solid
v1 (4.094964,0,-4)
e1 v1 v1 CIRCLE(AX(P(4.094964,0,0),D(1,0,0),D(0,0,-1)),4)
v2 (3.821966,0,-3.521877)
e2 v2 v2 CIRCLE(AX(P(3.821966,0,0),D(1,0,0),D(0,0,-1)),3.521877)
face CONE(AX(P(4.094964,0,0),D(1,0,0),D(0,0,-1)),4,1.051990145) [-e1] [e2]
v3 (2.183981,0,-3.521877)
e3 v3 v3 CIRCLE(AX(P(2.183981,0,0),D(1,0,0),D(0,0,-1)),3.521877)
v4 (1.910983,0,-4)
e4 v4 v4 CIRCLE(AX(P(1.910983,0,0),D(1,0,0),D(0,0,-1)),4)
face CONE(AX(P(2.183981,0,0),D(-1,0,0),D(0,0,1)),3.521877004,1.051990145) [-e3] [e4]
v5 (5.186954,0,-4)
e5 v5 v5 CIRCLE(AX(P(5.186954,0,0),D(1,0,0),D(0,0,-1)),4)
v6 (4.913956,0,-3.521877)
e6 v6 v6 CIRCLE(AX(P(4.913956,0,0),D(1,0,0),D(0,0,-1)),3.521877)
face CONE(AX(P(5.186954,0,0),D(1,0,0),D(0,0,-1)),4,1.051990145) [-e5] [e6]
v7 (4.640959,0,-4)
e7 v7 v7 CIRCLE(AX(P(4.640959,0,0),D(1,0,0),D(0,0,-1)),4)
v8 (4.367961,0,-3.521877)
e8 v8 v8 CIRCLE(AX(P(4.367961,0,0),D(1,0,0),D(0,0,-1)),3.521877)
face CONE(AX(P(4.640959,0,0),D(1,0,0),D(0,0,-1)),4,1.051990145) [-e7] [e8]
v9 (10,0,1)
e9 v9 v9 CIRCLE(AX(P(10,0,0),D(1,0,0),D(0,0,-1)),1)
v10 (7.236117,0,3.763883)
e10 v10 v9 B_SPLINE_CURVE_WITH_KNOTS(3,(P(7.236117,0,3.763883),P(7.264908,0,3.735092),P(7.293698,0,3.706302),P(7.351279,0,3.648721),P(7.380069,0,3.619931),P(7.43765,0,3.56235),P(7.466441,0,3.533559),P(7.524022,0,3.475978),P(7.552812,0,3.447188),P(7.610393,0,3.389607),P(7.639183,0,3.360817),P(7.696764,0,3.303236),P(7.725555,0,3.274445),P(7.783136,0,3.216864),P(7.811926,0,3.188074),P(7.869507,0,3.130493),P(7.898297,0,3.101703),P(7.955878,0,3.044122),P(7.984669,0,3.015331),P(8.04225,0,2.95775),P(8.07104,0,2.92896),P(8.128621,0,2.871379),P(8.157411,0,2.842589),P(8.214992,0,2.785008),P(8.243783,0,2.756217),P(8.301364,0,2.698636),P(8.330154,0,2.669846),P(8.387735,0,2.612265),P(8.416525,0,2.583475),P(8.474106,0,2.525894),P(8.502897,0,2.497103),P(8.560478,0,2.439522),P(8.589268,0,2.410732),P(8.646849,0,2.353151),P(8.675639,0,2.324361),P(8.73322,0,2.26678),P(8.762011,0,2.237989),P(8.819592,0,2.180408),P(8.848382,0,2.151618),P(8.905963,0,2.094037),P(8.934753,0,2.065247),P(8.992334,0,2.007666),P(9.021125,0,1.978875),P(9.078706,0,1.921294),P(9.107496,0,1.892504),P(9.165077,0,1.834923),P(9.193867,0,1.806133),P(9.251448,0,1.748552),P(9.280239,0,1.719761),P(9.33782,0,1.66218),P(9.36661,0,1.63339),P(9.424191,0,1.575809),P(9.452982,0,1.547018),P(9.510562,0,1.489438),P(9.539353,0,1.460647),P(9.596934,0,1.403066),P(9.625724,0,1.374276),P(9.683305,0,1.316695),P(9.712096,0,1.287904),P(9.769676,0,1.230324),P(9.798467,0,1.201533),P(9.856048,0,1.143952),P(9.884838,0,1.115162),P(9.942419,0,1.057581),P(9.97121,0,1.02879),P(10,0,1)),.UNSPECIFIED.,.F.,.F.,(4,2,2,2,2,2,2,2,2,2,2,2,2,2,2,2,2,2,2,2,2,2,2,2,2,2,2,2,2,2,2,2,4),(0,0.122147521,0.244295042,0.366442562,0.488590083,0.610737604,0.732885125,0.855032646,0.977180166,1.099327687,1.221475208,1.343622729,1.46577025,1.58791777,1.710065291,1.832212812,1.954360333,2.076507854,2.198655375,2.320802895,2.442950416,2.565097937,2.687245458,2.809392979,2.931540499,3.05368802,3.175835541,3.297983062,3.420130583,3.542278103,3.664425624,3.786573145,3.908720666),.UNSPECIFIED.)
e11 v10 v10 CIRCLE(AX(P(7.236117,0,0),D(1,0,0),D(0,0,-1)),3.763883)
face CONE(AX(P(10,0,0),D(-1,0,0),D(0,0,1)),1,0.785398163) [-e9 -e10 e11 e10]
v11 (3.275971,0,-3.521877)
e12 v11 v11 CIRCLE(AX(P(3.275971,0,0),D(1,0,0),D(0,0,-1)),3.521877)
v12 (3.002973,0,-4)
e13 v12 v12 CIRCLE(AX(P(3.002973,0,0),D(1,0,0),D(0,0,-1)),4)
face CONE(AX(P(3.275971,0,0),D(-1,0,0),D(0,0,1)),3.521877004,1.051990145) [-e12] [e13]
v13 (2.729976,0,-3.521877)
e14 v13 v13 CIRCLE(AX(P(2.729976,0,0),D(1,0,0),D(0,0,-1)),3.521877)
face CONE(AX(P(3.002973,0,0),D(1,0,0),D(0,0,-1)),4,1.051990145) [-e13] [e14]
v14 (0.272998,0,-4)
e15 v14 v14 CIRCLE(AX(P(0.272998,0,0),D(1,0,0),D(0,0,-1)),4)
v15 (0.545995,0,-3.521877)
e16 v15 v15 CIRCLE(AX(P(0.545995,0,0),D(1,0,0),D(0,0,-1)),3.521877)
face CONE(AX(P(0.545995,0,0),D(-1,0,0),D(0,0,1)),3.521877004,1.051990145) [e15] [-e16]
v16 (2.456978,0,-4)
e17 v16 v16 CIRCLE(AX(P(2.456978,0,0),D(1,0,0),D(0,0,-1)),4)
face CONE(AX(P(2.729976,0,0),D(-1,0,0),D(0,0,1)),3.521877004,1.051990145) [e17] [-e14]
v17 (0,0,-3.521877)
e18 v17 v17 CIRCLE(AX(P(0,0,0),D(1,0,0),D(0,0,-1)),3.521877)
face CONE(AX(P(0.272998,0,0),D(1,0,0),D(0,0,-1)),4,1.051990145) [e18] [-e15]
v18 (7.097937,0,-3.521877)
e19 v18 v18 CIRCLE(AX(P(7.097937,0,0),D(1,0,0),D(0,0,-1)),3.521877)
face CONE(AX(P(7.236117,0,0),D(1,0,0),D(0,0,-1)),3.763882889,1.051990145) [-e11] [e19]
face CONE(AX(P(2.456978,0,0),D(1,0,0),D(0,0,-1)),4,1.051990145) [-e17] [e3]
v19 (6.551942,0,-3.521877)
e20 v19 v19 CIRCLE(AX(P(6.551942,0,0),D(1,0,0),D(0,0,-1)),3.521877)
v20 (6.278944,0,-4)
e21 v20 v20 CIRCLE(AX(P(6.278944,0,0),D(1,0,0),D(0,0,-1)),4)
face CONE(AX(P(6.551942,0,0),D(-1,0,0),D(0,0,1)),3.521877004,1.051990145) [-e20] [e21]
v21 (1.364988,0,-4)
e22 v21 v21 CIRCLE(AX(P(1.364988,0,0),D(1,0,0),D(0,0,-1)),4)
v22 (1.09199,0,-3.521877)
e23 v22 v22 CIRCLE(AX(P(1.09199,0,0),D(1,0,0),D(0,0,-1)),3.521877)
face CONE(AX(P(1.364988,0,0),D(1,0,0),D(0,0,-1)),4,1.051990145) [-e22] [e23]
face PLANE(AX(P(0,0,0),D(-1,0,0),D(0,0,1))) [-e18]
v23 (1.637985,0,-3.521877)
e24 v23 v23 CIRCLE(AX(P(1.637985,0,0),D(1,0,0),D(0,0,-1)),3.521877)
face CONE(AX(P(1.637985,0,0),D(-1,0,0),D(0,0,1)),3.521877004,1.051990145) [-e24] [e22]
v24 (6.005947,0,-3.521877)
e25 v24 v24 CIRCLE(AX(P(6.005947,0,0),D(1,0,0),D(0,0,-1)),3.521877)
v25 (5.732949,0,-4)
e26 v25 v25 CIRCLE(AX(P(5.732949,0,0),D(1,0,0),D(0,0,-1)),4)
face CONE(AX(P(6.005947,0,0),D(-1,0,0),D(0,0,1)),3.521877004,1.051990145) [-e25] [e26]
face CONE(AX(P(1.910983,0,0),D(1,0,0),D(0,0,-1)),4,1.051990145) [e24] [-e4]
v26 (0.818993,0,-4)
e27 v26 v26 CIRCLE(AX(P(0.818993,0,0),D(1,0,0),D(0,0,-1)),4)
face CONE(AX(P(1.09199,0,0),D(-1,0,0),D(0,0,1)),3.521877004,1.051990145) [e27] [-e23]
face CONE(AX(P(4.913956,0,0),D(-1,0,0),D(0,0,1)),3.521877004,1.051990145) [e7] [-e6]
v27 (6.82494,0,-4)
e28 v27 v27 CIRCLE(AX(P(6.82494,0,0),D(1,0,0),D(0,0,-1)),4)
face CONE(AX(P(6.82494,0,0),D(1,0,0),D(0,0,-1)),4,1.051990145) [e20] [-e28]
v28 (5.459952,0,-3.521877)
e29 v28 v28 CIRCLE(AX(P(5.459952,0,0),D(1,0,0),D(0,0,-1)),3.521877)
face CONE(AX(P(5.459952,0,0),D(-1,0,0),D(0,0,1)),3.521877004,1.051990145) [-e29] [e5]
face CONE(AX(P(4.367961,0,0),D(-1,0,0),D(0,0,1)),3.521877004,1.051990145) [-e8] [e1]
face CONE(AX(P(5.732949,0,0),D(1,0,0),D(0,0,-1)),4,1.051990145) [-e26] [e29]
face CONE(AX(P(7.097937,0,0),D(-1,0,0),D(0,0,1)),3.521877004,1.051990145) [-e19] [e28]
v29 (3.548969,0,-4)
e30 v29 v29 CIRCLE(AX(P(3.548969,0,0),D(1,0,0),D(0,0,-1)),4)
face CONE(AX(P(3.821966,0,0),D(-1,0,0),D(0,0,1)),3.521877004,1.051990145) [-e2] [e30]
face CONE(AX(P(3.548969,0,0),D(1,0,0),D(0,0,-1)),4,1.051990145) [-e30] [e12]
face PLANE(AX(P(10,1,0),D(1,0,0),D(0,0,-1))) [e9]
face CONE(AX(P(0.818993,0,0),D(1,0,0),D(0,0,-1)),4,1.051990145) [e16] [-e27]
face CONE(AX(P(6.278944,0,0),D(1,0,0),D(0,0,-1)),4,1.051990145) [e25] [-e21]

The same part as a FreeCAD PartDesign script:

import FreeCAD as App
import Part
import Sketcher
from FreeCAD import Vector
Q = App.Units.Quantity

doc = App.newDocument("Part")
params = doc.addObject("Spreadsheet::Sheet", "Params")
for row, (alias, value) in enumerate([
    ("sketch1_width", "10 mm"),
    ("sketch1_height", "1 mm"),
    ("revolution_angle", "360 deg"),
], start=1):
    params.set(f"A{row}", alias)
    params.set(f"B{row}", "=" + value)
    params.setAlias(f"B{row}", alias)

body = doc.addObject("PartDesign::Body", "Body")

# Sketch on XY plane
sketch1 = body.newObject("Sketcher::SketchObject", "Sketch")
sketch1.AttachmentSupport = (doc.getObject("XY_Plane"), [""])
sketch1.MapMode = "FlatFace"
sketch1.addGeometry([
    Part.LineSegment(Vector(0, 0, 0), Vector(10, 0, 0)),  # 0
    Part.LineSegment(Vector(10, 0, 0), Vector(10, 1, 0)),  # 1
    Part.LineSegment(Vector(10, 1, 0), Vector(7.24, 3.76, 0)),  # 2
    Part.LineSegment(Vector(7.24, 3.76, 0), Vector(7.1, 3.52, 0)),  # 3
    Part.LineSegment(Vector(7.1, 3.52, 0), Vector(6.82, 4, 0)),  # 4
    Part.LineSegment(Vector(6.82, 4, 0), Vector(6.55, 3.52, 0)),  # 5
    Part.LineSegment(Vector(6.55, 3.52, 0), Vector(6.28, 4, 0)),  # 6
    Part.LineSegment(Vector(6.28, 4, 0), Vector(6.01, 3.52, 0)),  # 7
    Part.LineSegment(Vector(6.01, 3.52, 0), Vector(5.73, 4, 0)),  # 8
    Part.LineSegment(Vector(5.73, 4, 0), Vector(5.46, 3.52, 0)),  # 9
    Part.LineSegment(Vector(5.46, 3.52, 0), Vector(5.19, 4, 0)),  # 10
    Part.LineSegment(Vector(5.19, 4, 0), Vector(4.91, 3.52, 0)),  # 11
    Part.LineSegment(Vector(4.91, 3.52, 0), Vector(4.64, 4, 0)),  # 12
    Part.LineSegment(Vector(4.64, 4, 0), Vector(4.37, 3.52, 0)),  # 13
    Part.LineSegment(Vector(4.37, 3.52, 0), Vector(4.09, 4, 0)),  # 14
    Part.LineSegment(Vector(4.09, 4, 0), Vector(3.82, 3.52, 0)),  # 15
    Part.LineSegment(Vector(3.82, 3.52, 0), Vector(3.55, 4, 0)),  # 16
    Part.LineSegment(Vector(3.55, 4, 0), Vector(3.28, 3.52, 0)),  # 17
    Part.LineSegment(Vector(3.28, 3.52, 0), Vector(3, 4, 0)),  # 18
    Part.LineSegment(Vector(3, 4, 0), Vector(2.73, 3.52, 0)),  # 19
    Part.LineSegment(Vector(2.73, 3.52, 0), Vector(2.46, 4, 0)),  # 20
    Part.LineSegment(Vector(2.46, 4, 0), Vector(2.18, 3.52, 0)),  # 21
    Part.LineSegment(Vector(2.18, 3.52, 0), Vector(1.91, 4, 0)),  # 22
    Part.LineSegment(Vector(1.91, 4, 0), Vector(1.64, 3.52, 0)),  # 23
    Part.LineSegment(Vector(1.64, 3.52, 0), Vector(1.36, 4, 0)),  # 24
    Part.LineSegment(Vector(1.36, 4, 0), Vector(1.09, 3.52, 0)),  # 25
    Part.LineSegment(Vector(1.09, 3.52, 0), Vector(0.82, 4, 0)),  # 26
    Part.LineSegment(Vector(0.82, 4, 0), Vector(0.55, 3.52, 0)),  # 27
    Part.LineSegment(Vector(0.55, 3.52, 0), Vector(0.27, 4, 0)),  # 28
    Part.LineSegment(Vector(0.27, 4, 0), Vector(0, 3.52, 0)),  # 29
    Part.LineSegment(Vector(0, 3.52, 0), Vector(0, 0, 0)),  # 30
], False)
sketch1.addConstraint([
    Sketcher.Constraint("Coincident", 0, 2, 1, 1),
    Sketcher.Constraint("Coincident", 1, 2, 2, 1),
    Sketcher.Constraint("Coincident", 2, 2, 3, 1),
    Sketcher.Constraint("Coincident", 3, 2, 4, 1),
    Sketcher.Constraint("Coincident", 4, 2, 5, 1),
    Sketcher.Constraint("Coincident", 5, 2, 6, 1),
    Sketcher.Constraint("Coincident", 6, 2, 7, 1),
    Sketcher.Constraint("Coincident", 7, 2, 8, 1),
    Sketcher.Constraint("Coincident", 8, 2, 9, 1),
    Sketcher.Constraint("Coincident", 9, 2, 10, 1),
    Sketcher.Constraint("Coincident", 10, 2, 11, 1),
    Sketcher.Constraint("Coincident", 11, 2, 12, 1),
    Sketcher.Constraint("Coincident", 12, 2, 13, 1),
    Sketcher.Constraint("Coincident", 13, 2, 14, 1),
    Sketcher.Constraint("Coincident", 14, 2, 15, 1),
    Sketcher.Constraint("Coincident", 15, 2, 16, 1),
    Sketcher.Constraint("Coincident", 16, 2, 17, 1),
    Sketcher.Constraint("Coincident", 17, 2, 18, 1),
    Sketcher.Constraint("Coincident", 18, 2, 19, 1),
    Sketcher.Constraint("Coincident", 19, 2, 20, 1),
    Sketcher.Constraint("Coincident", 20, 2, 21, 1),
    Sketcher.Constraint("Coincident", 21, 2, 22, 1),
    Sketcher.Constraint("Coincident", 22, 2, 23, 1),
    Sketcher.Constraint("Coincident", 23, 2, 24, 1),
    Sketcher.Constraint("Coincident", 24, 2, 25, 1),
    Sketcher.Constraint("Coincident", 25, 2, 26, 1),
    Sketcher.Constraint("Coincident", 26, 2, 27, 1),
    Sketcher.Constraint("Coincident", 27, 2, 28, 1),
    Sketcher.Constraint("Coincident", 28, 2, 29, 1),
    Sketcher.Constraint("Coincident", 29, 2, 30, 1),
    Sketcher.Constraint("Coincident", 30, 2, 0, 1),
    Sketcher.Constraint("Horizontal", 0),
    Sketcher.Constraint("Vertical", 1),
    Sketcher.Constraint("Vertical", 30),
    Sketcher.Constraint("Coincident", 30, 2, -1, 1),
    Sketcher.Constraint("Parallel", 3, 5),
    Sketcher.Constraint("Parallel", 4, 6),
    Sketcher.Constraint("Parallel", 5, 7),
    Sketcher.Constraint("Parallel", 6, 8),
    Sketcher.Constraint("Parallel", 7, 9),
    Sketcher.Constraint("Parallel", 8, 10),
    Sketcher.Constraint("Parallel", 9, 11),
    Sketcher.Constraint("Parallel", 10, 12),
    Sketcher.Constraint("Parallel", 11, 13),
    Sketcher.Constraint("Parallel", 12, 14),
    Sketcher.Constraint("Parallel", 13, 15),
    Sketcher.Constraint("Parallel", 14, 16),
    Sketcher.Constraint("Parallel", 15, 17),
    Sketcher.Constraint("Parallel", 16, 18),
    Sketcher.Constraint("Parallel", 17, 19),
    Sketcher.Constraint("Parallel", 18, 20),
    Sketcher.Constraint("Parallel", 19, 21),
    Sketcher.Constraint("Parallel", 20, 22),
    Sketcher.Constraint("Parallel", 21, 23),
    Sketcher.Constraint("Parallel", 22, 24),
    Sketcher.Constraint("Parallel", 23, 25),
    Sketcher.Constraint("Parallel", 24, 26),
    Sketcher.Constraint("Parallel", 25, 27),
    Sketcher.Constraint("Parallel", 26, 28),
    Sketcher.Constraint("Parallel", 27, 29),
    Sketcher.Constraint("Horizontal", 3, 2, 5, 2),
    Sketcher.Constraint("Horizontal", 4, 2, 6, 2),
    Sketcher.Constraint("Horizontal", 5, 2, 7, 2),
    Sketcher.Constraint("Horizontal", 6, 2, 8, 2),
    Sketcher.Constraint("Horizontal", 7, 2, 9, 2),
    Sketcher.Constraint("Horizontal", 8, 2, 10, 2),
    Sketcher.Constraint("Horizontal", 9, 2, 11, 2),
    Sketcher.Constraint("Horizontal", 10, 2, 12, 2),
    Sketcher.Constraint("Horizontal", 11, 2, 13, 2),
    Sketcher.Constraint("Horizontal", 12, 2, 14, 2),
    Sketcher.Constraint("Horizontal", 13, 2, 15, 2),
    Sketcher.Constraint("Horizontal", 14, 2, 16, 2),
    Sketcher.Constraint("Horizontal", 15, 2, 17, 2),
    Sketcher.Constraint("Horizontal", 16, 2, 18, 2),
    Sketcher.Constraint("Horizontal", 17, 2, 19, 2),
    Sketcher.Constraint("Horizontal", 18, 2, 20, 2),
    Sketcher.Constraint("Horizontal", 19, 2, 21, 2),
    Sketcher.Constraint("Horizontal", 20, 2, 22, 2),
    Sketcher.Constraint("Horizontal", 21, 2, 23, 2),
    Sketcher.Constraint("Horizontal", 22, 2, 24, 2),
    Sketcher.Constraint("Horizontal", 23, 2, 25, 2),
    Sketcher.Constraint("Horizontal", 24, 2, 26, 2),
    Sketcher.Constraint("Horizontal", 25, 2, 27, 2),
    Sketcher.Constraint("Horizontal", 26, 2, 28, 2),
    Sketcher.Constraint("Horizontal", 27, 2, 29, 2),
    Sketcher.Constraint("Equal", 4, 5),
    Sketcher.Constraint("DistanceX", 0, 1, 0, 2, 10.0),
    Sketcher.Constraint("DistanceY", 1, 1, 1, 2, 1.0),
    Sketcher.Constraint("Angle", 2, Q("135 deg")),
    Sketcher.Constraint("DistanceY", -1, 1, 4, 2, 4.0),
    Sketcher.Constraint("Distance", 2, 3.908721),
    Sketcher.Constraint("Distance", 4, 0.550572),
])
sketch1.setExpression("Constraints[86]", "Params.sketch1_width")
sketch1.setExpression("Constraints[87]", "Params.sketch1_height")
revolution = body.newObject("PartDesign::Revolution", "Revolution")
revolution.Profile = sketch1
revolution.ReferenceAxis = (sketch1, ["H_Axis"])
revolution.setExpression("Angle", "Params.revolution_angle")

doc.recompute()
